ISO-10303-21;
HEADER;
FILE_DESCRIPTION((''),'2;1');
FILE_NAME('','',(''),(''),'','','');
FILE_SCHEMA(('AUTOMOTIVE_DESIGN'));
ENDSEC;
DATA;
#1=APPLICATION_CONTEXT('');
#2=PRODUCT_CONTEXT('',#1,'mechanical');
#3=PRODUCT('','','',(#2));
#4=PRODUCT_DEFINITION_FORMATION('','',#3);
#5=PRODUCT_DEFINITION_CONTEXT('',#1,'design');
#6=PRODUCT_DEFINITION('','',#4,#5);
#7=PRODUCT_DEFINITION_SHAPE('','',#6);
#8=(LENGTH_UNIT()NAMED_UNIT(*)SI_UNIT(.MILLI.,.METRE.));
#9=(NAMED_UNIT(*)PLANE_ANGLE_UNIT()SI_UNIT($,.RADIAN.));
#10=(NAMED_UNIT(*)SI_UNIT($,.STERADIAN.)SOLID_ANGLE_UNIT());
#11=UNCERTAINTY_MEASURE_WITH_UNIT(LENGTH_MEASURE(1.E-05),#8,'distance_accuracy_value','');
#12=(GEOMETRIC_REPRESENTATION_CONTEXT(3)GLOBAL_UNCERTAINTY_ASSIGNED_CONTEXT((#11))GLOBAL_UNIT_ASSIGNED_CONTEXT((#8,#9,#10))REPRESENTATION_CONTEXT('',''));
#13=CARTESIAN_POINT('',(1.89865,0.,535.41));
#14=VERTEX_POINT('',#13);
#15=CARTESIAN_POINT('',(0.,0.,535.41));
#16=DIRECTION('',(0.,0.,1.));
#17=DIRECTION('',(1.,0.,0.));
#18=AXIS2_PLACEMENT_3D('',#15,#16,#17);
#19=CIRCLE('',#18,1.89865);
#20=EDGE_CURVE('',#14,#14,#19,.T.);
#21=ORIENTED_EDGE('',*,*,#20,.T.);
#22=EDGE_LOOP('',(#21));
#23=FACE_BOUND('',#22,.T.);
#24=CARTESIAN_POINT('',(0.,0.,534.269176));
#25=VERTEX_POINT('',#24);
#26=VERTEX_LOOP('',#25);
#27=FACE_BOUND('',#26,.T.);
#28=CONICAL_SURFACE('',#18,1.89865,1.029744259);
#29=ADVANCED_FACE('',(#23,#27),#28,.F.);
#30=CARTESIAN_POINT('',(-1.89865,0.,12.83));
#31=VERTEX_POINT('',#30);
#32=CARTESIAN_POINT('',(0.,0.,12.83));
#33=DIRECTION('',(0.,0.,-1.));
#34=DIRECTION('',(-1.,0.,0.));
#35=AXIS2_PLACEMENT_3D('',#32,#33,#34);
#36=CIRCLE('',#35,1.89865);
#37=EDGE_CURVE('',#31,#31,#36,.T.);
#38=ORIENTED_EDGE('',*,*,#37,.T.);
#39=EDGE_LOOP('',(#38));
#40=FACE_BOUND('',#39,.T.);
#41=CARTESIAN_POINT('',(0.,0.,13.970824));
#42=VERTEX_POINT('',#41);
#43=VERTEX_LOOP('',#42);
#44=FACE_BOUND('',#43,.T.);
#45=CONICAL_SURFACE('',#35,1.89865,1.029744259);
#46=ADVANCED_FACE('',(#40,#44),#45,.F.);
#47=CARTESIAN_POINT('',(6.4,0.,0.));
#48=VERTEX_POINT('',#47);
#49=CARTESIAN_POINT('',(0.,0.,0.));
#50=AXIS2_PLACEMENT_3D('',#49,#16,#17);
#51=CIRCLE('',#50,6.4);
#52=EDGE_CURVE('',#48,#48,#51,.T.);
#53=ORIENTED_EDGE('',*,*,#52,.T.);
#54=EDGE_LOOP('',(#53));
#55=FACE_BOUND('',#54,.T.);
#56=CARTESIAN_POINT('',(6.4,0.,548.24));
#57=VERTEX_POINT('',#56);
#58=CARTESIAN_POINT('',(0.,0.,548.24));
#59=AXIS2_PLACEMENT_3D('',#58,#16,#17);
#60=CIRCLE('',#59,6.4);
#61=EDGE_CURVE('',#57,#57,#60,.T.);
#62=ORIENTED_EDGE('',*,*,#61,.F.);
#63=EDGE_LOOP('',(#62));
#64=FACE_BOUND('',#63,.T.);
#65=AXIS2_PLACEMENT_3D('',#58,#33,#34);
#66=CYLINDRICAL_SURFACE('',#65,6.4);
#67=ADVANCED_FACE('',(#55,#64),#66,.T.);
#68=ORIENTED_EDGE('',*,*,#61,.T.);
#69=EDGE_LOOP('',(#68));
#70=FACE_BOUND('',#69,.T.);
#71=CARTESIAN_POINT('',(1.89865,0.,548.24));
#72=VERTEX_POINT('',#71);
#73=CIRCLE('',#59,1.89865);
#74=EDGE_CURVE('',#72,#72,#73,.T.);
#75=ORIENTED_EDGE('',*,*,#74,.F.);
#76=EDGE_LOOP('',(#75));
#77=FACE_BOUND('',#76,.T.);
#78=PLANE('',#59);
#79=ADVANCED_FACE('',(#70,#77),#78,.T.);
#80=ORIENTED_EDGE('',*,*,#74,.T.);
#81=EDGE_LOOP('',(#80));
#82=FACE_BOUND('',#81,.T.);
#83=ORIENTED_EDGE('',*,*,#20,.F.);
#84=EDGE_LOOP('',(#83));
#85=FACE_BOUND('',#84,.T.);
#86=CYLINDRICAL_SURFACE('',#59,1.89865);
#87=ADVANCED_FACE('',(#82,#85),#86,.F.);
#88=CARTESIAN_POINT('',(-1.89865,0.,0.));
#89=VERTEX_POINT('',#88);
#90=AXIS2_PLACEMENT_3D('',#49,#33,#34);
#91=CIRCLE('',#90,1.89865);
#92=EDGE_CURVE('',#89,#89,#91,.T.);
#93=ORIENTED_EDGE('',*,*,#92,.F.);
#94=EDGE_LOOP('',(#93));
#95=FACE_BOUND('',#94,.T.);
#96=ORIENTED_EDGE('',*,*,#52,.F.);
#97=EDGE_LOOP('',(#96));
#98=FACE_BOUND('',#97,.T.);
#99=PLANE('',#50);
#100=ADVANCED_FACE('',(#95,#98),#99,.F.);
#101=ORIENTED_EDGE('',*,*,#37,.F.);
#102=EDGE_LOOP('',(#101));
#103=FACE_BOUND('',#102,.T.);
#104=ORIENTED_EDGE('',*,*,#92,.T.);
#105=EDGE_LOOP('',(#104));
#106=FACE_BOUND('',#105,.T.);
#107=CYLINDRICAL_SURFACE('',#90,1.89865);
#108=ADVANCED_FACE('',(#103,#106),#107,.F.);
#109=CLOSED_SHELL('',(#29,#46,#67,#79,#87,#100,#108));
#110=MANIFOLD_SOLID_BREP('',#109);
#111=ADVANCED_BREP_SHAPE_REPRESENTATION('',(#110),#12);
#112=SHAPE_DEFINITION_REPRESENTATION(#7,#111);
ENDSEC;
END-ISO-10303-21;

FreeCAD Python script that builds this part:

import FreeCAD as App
import Part
import Sketcher
from FreeCAD import Vector
Q = App.Units.Quantity

doc = App.newDocument("Part")
params = doc.addObject("Spreadsheet::Sheet", "Params")
for row, (alias, value) in enumerate([
    ("sketch1_diameter", "12.8 mm"),
    ("pad1_length", "548.24 mm"),
    ("hole_diameter", "3.7973 mm"),
    ("hole_depth", "12.83 mm"),
    ("hole2_diameter", "3.7973 mm"),
    ("hole2_depth", "12.83 mm"),
], start=1):
    params.set(f"A{row}", alias)
    params.set(f"B{row}", "=" + value)
    params.setAlias(f"B{row}", alias)

body = doc.addObject("PartDesign::Body", "Body")

# Sketch on XY plane
sketch1 = body.newObject("Sketcher::SketchObject", "Sketch")
sketch1.AttachmentSupport = (doc.getObject("XY_Plane"), [""])
sketch1.MapMode = "FlatFace"
sketch1.addGeometry(Part.Circle(Vector(0, 0, 0), Vector(0, 0, 1), 6.4), False)
sketch1.addConstraint(Sketcher.Constraint("Coincident", 0, 3, -1, 1))
sketch1.addConstraint(Sketcher.Constraint("Diameter", 0, Q("12.8 mm")))
sketch1.setExpression("Constraints[1]", "Params.sketch1_diameter")
pad1 = body.newObject("PartDesign::Pad", "Pad")
pad1.Profile = sketch1
pad1.setExpression("Length", "Params.pad1_length")

# Sketch on XY plane
sketch2 = body.newObject("Sketcher::SketchObject", "Sketch001")
sketch2.AttachmentSupport = (doc.getObject("XY_Plane"), [""])
sketch2.MapMode = "FlatFace"
sketch2.addGeometry(Part.Circle(Vector(0, 0, 0), Vector(0, 0, 1), 1.89865), False)
sketch2.addConstraint(Sketcher.Constraint("Coincident", 0, 3, -1, 1))
sketch2.addConstraint(Sketcher.Constraint("Diameter", 0, Q("3.7973 mm")))
doc.recompute()
hole = body.newObject("PartDesign::Hole", "Hole")
hole.Profile = sketch2
hole.ThreadType = "None"
hole.setExpression("Diameter", "Params.hole_diameter")
hole.DepthType = "Dimension"
hole.setExpression("Depth", "Params.hole_depth")
hole.DrillPoint = "Angled"
hole.DrillPointAngle = 118
hole.Reversed = True

# Sketch on XY plane
sketch3 = body.newObject("Sketcher::SketchObject", "Sketch002")
sketch3.AttachmentSupport = (doc.getObject("XY_Plane"), [""])
sketch3.MapMode = "FlatFace"
sketch3.AttachmentOffset = App.Placement(Vector(0, 0, 548.24), App.Rotation())
sketch3.addGeometry(Part.Circle(Vector(0, 0, 0), Vector(0, 0, 1), 1.89865), False)
sketch3.addConstraint(Sketcher.Constraint("Coincident", 0, 3, -1, 1))
sketch3.addConstraint(Sketcher.Constraint("Diameter", 0, Q("3.7973 mm")))
doc.recompute()
hole2 = body.newObject("PartDesign::Hole", "Hole001")
hole2.Profile = sketch3
hole2.ThreadType = "None"
hole2.setExpression("Diameter", "Params.hole2_diameter")
hole2.DepthType = "Dimension"
hole2.setExpression("Depth", "Params.hole2_depth")
hole2.DrillPoint = "Angled"
hole2.DrillPointAngle = 118

doc.recompute()
